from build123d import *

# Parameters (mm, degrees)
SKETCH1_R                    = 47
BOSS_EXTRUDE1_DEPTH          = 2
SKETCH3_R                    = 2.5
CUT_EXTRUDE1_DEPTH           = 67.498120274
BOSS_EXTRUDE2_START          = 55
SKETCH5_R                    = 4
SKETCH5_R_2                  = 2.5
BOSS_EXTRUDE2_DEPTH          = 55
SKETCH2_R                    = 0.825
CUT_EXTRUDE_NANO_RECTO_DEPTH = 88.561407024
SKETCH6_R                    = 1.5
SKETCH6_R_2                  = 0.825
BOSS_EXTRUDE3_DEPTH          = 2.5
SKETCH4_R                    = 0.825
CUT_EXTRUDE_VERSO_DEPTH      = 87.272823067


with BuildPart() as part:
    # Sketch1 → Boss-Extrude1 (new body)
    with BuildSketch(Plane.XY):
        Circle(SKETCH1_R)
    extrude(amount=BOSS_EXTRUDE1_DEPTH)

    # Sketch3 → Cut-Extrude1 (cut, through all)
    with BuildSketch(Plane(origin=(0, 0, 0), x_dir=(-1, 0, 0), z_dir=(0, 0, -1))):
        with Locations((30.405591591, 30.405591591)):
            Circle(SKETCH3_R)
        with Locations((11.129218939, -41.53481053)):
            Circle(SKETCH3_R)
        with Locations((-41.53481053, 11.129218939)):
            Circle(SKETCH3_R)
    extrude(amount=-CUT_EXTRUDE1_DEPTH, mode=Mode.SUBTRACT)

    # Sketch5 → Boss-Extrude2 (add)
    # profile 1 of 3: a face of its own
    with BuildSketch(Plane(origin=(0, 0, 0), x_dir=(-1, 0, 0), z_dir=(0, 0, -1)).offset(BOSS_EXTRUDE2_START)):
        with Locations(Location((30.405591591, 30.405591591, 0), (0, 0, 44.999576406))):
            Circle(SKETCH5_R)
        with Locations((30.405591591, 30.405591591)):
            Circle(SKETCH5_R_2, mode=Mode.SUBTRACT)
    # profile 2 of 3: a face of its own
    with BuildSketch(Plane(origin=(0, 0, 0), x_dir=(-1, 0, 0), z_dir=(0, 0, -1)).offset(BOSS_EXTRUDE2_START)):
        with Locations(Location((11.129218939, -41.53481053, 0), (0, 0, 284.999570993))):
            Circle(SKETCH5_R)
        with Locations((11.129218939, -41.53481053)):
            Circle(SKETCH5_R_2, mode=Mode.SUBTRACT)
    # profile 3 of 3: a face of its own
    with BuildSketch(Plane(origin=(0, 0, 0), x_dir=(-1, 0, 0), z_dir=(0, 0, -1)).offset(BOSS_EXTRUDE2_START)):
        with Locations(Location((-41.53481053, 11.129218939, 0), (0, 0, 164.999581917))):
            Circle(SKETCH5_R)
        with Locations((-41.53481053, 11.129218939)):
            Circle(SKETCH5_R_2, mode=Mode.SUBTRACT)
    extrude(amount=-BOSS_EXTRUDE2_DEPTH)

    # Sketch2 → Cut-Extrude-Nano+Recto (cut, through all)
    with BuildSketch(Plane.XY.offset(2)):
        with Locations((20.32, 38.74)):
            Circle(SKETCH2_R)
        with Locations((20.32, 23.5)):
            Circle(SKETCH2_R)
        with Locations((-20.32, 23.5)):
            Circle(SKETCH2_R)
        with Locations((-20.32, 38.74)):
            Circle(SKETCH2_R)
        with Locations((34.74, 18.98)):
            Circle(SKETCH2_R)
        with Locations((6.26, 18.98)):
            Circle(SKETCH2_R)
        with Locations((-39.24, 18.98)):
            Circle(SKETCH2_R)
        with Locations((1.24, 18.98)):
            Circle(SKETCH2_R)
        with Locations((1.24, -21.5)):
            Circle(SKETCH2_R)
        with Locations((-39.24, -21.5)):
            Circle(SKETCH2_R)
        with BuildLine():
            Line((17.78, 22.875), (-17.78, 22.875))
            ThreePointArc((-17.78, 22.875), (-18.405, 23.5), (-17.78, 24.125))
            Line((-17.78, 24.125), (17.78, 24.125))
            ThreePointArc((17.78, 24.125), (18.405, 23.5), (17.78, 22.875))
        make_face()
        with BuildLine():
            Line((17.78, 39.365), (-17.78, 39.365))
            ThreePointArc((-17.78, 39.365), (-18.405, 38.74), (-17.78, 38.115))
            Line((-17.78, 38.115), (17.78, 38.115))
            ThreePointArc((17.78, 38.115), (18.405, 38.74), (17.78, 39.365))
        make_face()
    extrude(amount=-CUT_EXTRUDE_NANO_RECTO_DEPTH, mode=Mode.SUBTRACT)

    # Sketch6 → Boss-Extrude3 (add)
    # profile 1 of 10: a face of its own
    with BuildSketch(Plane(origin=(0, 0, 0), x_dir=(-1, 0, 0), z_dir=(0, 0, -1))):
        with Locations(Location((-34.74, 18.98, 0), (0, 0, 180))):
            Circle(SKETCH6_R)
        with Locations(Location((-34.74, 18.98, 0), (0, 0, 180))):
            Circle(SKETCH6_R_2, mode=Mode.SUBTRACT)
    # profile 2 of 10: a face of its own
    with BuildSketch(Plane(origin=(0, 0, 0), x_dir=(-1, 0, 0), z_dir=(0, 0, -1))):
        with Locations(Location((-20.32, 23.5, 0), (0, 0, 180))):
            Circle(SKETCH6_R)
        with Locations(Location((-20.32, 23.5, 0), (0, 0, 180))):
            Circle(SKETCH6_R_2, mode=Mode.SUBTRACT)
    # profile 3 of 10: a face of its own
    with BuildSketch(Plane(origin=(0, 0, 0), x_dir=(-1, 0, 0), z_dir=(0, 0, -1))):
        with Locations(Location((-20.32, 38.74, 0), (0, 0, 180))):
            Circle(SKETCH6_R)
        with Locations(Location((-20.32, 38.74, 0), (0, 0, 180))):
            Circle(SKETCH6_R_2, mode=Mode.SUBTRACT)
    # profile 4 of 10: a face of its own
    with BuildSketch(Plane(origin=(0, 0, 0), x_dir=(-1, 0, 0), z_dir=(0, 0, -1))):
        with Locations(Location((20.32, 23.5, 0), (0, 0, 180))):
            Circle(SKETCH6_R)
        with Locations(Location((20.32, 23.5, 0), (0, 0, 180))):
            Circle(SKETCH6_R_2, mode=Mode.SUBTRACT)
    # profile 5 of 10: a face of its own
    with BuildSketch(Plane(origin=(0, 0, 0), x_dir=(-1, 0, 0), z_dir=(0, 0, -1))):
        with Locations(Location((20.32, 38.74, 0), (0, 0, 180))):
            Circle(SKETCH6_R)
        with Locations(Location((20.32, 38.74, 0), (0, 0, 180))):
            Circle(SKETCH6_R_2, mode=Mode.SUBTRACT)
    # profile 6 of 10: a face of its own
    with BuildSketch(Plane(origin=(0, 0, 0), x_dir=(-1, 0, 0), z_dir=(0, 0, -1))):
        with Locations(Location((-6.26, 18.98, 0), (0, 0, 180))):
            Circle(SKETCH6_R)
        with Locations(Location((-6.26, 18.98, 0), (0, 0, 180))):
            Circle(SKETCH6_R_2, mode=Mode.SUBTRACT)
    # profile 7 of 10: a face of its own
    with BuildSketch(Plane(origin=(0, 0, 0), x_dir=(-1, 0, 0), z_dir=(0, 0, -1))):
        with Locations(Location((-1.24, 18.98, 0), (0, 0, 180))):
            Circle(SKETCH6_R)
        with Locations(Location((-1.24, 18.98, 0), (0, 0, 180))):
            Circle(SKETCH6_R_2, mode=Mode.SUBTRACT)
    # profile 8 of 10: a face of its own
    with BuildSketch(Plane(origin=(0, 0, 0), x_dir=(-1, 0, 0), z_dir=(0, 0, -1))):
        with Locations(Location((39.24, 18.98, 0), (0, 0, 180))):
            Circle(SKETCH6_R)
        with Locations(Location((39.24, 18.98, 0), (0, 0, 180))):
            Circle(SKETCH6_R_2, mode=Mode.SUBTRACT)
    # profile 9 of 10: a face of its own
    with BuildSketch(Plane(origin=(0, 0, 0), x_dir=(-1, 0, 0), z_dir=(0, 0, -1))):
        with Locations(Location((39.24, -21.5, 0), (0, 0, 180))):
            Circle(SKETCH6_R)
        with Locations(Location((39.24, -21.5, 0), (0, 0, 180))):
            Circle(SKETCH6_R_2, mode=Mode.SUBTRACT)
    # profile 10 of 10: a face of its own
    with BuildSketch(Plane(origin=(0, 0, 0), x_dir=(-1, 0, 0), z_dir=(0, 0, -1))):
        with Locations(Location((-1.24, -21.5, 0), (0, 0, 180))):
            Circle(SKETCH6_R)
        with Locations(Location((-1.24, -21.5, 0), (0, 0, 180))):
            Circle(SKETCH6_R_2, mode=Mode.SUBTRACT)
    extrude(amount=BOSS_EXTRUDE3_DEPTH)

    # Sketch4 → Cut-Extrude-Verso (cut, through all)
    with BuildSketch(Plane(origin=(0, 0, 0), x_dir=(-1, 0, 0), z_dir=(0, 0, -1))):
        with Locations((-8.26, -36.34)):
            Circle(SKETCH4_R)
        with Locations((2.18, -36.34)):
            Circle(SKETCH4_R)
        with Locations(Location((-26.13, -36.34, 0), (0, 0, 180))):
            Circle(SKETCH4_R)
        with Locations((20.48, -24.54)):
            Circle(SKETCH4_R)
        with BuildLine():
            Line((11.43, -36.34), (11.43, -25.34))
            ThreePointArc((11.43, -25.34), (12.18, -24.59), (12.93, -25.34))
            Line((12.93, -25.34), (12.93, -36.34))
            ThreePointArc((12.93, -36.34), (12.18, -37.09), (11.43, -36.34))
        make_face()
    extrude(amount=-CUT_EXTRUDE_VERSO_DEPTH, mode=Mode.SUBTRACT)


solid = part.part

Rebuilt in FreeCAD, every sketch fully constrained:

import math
import FreeCAD as App
import Part
import Sketcher
Q = App.Units.Quantity

doc = App.newDocument("Part")
body = doc.addObject("PartDesign::Body", "Body")

# Sketch on XY plane
sketch1 = body.newObject("Sketcher::SketchObject", "Sketch")
sketch1.AttachmentSupport = (doc.getObject("XY_Plane"), [""])
sketch1.MapMode = "FlatFace"
sketch1.addGeometry(Part.Circle(App.Vector(0, 0, 0), App.Vector(0, 0, 1), 47), False)
sketch1.addConstraint(Sketcher.Constraint("Coincident", 0, 3, -1, 1))
sketch1.addConstraint(Sketcher.Constraint("Diameter", 0, Q("94 mm")))
pad1 = body.newObject("PartDesign::Pad", "Pad")
pad1.Profile = sketch1
pad1.Length = 2

# Sketch on XY plane
sketch2 = body.newObject("Sketcher::SketchObject", "Sketch001")
sketch2.AttachmentSupport = (doc.getObject("XY_Plane"), [""])
sketch2.MapMode = "FlatFace"
sketch2.addGeometry(Part.Circle(App.Vector(-30.4, 30.4, 0), App.Vector(0, 0, 1), 2.5), False)
sketch2.addGeometry(Part.Circle(App.Vector(-11.1, -41.5, 0), App.Vector(0, 0, 1), 2.5), False)
sketch2.addGeometry(Part.Circle(App.Vector(41.5, 11.1, 0), App.Vector(0, 0, 1), 2.5), False)
sketch2.addConstraint(Sketcher.Constraint("Equal", 0, 1))
sketch2.addConstraint(Sketcher.Constraint("Equal", 1, 2))
sketch2.addConstraint(Sketcher.Constraint("Diameter", 0, Q("5 mm")))
sketch2.addConstraint(Sketcher.Constraint("DistanceX", 0, 3, -1, 1, Q("30.405592 mm")))
sketch2.addConstraint(Sketcher.Constraint("DistanceY", -1, 1, 0, 3, Q("30.405592 mm")))
sketch2.addConstraint(Sketcher.Constraint("DistanceX", 1, 3, -1, 1, Q("11.129219 mm")))
sketch2.addConstraint(Sketcher.Constraint("DistanceY", 1, 3, -1, 1, Q("41.534811 mm")))
sketch2.addConstraint(Sketcher.Constraint("DistanceX", -1, 1, 2, 3, Q("41.534811 mm")))
sketch2.addConstraint(Sketcher.Constraint("DistanceY", -1, 1, 2, 3, Q("11.129219 mm")))
pocket1 = body.newObject("PartDesign::Pocket", "Pocket")
pocket1.Profile = sketch2
pocket1.Type = "ThroughAll"
pocket1.Reversed = True

# Sketch on XY plane
sketch3 = body.newObject("Sketcher::SketchObject", "Sketch002")
sketch3.AttachmentSupport = (doc.getObject("XY_Plane"), [""])
sketch3.MapMode = "FlatFace"
sketch3.AttachmentOffset = App.Placement(App.Vector(0, 0, -55), App.Rotation())
sketch3.addGeometry(Part.Circle(App.Vector(-30.4, 30.4, 0), App.Vector(0, 0, 1), 4), False)
sketch3.addGeometry(Part.Circle(App.Vector(-30.4, 30.4, 0), App.Vector(0, 0, 1), 2.5), False)
sketch3.addGeometry(Part.Circle(App.Vector(-11.1, -41.5, 0), App.Vector(0, 0, 1), 4), False)
sketch3.addGeometry(Part.Circle(App.Vector(-11.1, -41.5, 0), App.Vector(0, 0, 1), 2.5), False)
sketch3.addGeometry(Part.Circle(App.Vector(41.5, 11.1, 0), App.Vector(0, 0, 1), 4), False)
sketch3.addGeometry(Part.Circle(App.Vector(41.5, 11.1, 0), App.Vector(0, 0, 1), 2.5), False)
sketch3.addConstraint(Sketcher.Constraint("Coincident", 1, 3, 0, 3))
sketch3.addConstraint(Sketcher.Constraint("Coincident", 3, 3, 2, 3))
sketch3.addConstraint(Sketcher.Constraint("Coincident", 5, 3, 4, 3))
sketch3.addConstraint(Sketcher.Constraint("Equal", 0, 2))
sketch3.addConstraint(Sketcher.Constraint("Equal", 1, 3))
sketch3.addConstraint(Sketcher.Constraint("Equal", 2, 4))
sketch3.addConstraint(Sketcher.Constraint("Equal", 3, 5))
sketch3.addConstraint(Sketcher.Constraint("Diameter", 0, Q("8 mm")))
sketch3.addConstraint(Sketcher.Constraint("Diameter", 1, Q("5 mm")))
sketch3.addConstraint(Sketcher.Constraint("DistanceX", 0, 3, -1, 1, Q("30.405592 mm")))
sketch3.addConstraint(Sketcher.Constraint("DistanceY", -1, 1, 0, 3, Q("30.405592 mm")))
sketch3.addConstraint(Sketcher.Constraint("DistanceX", 2, 3, -1, 1, Q("11.129219 mm")))
sketch3.addConstraint(Sketcher.Constraint("DistanceY", 2, 3, -1, 1, Q("41.534811 mm")))
sketch3.addConstraint(Sketcher.Constraint("DistanceX", -1, 1, 4, 3, Q("41.534811 mm")))
sketch3.addConstraint(Sketcher.Constraint("DistanceY", -1, 1, 4, 3, Q("11.129219 mm")))
pad2 = body.newObject("PartDesign::Pad", "Pad001")
pad2.Profile = sketch3
pad2.Length = 55

# Sketch on XY plane
sketch4 = body.newObject("Sketcher::SketchObject", "Sketch003")
sketch4.AttachmentSupport = (doc.getObject("XY_Plane"), [""])
sketch4.MapMode = "FlatFace"
sketch4.AttachmentOffset = App.Placement(App.Vector(0, 0, 2), App.Rotation())
sketch4.addGeometry(Part.Circle(App.Vector(20.3, 38.7, 0), App.Vector(0, 0, 1), 0.8), False)
sketch4.addGeometry(Part.Circle(App.Vector(20.3, 23.5, 0), App.Vector(0, 0, 1), 0.8), False)
sketch4.addGeometry(Part.Circle(App.Vector(-20.3, 23.5, 0), App.Vector(0, 0, 1), 0.8), False)
sketch4.addGeometry(Part.Circle(App.Vector(-20.3, 38.7, 0), App.Vector(0, 0, 1), 0.8), False)
sketch4.addGeometry(Part.Circle(App.Vector(34.7, 19, 0), App.Vector(0, 0, 1), 0.8), False)
sketch4.addGeometry(Part.Circle(App.Vector(6.3, 19, 0), App.Vector(0, 0, 1), 0.8), False)
sketch4.addGeometry(Part.Circle(App.Vector(-39.2, 19, 0), App.Vector(0, 0, 1), 0.8), False)
sketch4.addGeometry(Part.Circle(App.Vector(1.2, 19, 0), App.Vector(0, 0, 1), 0.8), False)
sketch4.addGeometry(Part.Circle(App.Vector(1.2, -21.5, 0), App.Vector(0, 0, 1), 0.8), False)
sketch4.addGeometry(Part.Circle(App.Vector(-39.2, -21.5, 0), App.Vector(0, 0, 1), 0.8), False)
sketch4.addGeometry(Part.LineSegment(App.Vector(-17.8, 22.9, 0), App.Vector(17.8, 22.9, 0)), False)
sketch4.addGeometry(Part.ArcOfCircle(Part.Circle(App.Vector(17.8, 23.5, 0), App.Vector(0, 0, 1), 0.6), math.radians(-90), math.radians(90)), False)
sketch4.addGeometry(Part.LineSegment(App.Vector(17.8, 24.1, 0), App.Vector(-17.8, 24.1, 0)), False)
sketch4.addGeometry(Part.ArcOfCircle(Part.Circle(App.Vector(-17.8, 23.5, 0), App.Vector(0, 0, 1), 0.6), math.radians(90), math.radians(270)), False)
sketch4.addGeometry(Part.LineSegment(App.Vector(17.8, 39.4, 0), App.Vector(-17.8, 39.4, 0)), False)
sketch4.addGeometry(Part.ArcOfCircle(Part.Circle(App.Vector(-17.8, 38.7, 0), App.Vector(0, 0, 1), 0.6), math.radians(90), math.radians(270)), False)
sketch4.addGeometry(Part.LineSegment(App.Vector(-17.8, 38.1, 0), App.Vector(17.8, 38.1, 0)), False)
sketch4.addGeometry(Part.ArcOfCircle(Part.Circle(App.Vector(17.8, 38.7, 0), App.Vector(0, 0, 1), 0.6), math.radians(-90), math.radians(90)), False)
sketch4.addConstraint(Sketcher.Constraint("Tangent", 10, 2, 11, 1))
sketch4.addConstraint(Sketcher.Constraint("Tangent", 11, 2, 12, 1))
sketch4.addConstraint(Sketcher.Constraint("Tangent", 12, 2, 13, 1))
sketch4.addConstraint(Sketcher.Constraint("Tangent", 13, 2, 10, 1))
sketch4.addConstraint(Sketcher.Constraint("Tangent", 14, 2, 15, 1))
sketch4.addConstraint(Sketcher.Constraint("Tangent", 15, 2, 16, 1))
sketch4.addConstraint(Sketcher.Constraint("Tangent", 16, 2, 17, 1))
sketch4.addConstraint(Sketcher.Constraint("Tangent", 17, 2, 14, 1))
sketch4.addConstraint(Sketcher.Constraint("Horizontal", 10))
sketch4.addConstraint(Sketcher.Constraint("Horizontal", 12))
sketch4.addConstraint(Sketcher.Constraint("Horizontal", 14))
sketch4.addConstraint(Sketcher.Constraint("Horizontal", 16))
sketch4.addConstraint(Sketcher.Constraint("Equal", 0, 1))
sketch4.addConstraint(Sketcher.Constraint("Equal", 1, 2))
sketch4.addConstraint(Sketcher.Constraint("Equal", 2, 3))
sketch4.addConstraint(Sketcher.Constraint("Equal", 3, 4))
sketch4.addConstraint(Sketcher.Constraint("Equal", 4, 5))
sketch4.addConstraint(Sketcher.Constraint("Equal", 5, 6))
sketch4.addConstraint(Sketcher.Constraint("Equal", 6, 7))
sketch4.addConstraint(Sketcher.Constraint("Equal", 7, 8))
sketch4.addConstraint(Sketcher.Constraint("Equal", 8, 9))
sketch4.addConstraint(Sketcher.Constraint("Equal", 13, 15))
sketch4.addConstraint(Sketcher.Constraint("Symmetric", 1, 3, 2, 3, -2))
sketch4.addConstraint(Sketcher.Constraint("Symmetric", 0, 3, 3, 3, -2))
sketch4.addConstraint(Sketcher.Constraint("Horizontal", 4, 3, 5, 3))
sketch4.addConstraint(Sketcher.Constraint("Horizontal", 5, 3, 6, 3))
sketch4.addConstraint(Sketcher.Constraint("Horizontal", 6, 3, 7, 3))
sketch4.addConstraint(Sketcher.Constraint("Horizontal", 8, 3, 9, 3))
sketch4.addConstraint(Sketcher.Constraint("Horizontal", 2, 3, 11, 3))
sketch4.addConstraint(Sketcher.Constraint("Horizontal", 3, 3, 15, 3))
sketch4.addConstraint(Sketcher.Constraint("Vertical", 0, 3, 1, 3))
sketch4.addConstraint(Sketcher.Constraint("Vertical", 7, 3, 8, 3))
sketch4.addConstraint(Sketcher.Constraint("Vertical", 6, 3, 9, 3))
sketch4.addConstraint(Sketcher.Constraint("Vertical", 13, 3, 15, 3))
sketch4.addConstraint(Sketcher.Constraint("Vertical", 11, 3, 17, 3))
sketch4.addConstraint(Sketcher.Constraint("Diameter", 0, Q("1.65 mm")))
sketch4.addConstraint(Sketcher.Constraint("Radius", 11, Q("0.625 mm")))
sketch4.addConstraint(Sketcher.Constraint("DistanceY", 8, 3, 1, 3, Q("45 mm")))
sketch4.addConstraint(Sketcher.Constraint("DistanceX", 10, 1, 10, 2, Q("35.56 mm")))
sketch4.addConstraint(Sketcher.Constraint("DistanceY", -1, 1, 1, 3, Q("23.5 mm")))
sketch4.addConstraint(Sketcher.Constraint("DistanceX", 6, 3, 5, 3, Q("45.5 mm")))
sketch4.addConstraint(Sketcher.Constraint("DistanceX", 8, 3, 4, 3, Q("33.5 mm")))
sketch4.addConstraint(Sketcher.Constraint("DistanceX", -1, 1, 0, 3, Q("20.32 mm")))
sketch4.addConstraint(Sketcher.Constraint("DistanceY", -1, 1, 0, 3, Q("38.74 mm")))
sketch4.addConstraint(Sketcher.Constraint("DistanceX", -1, 1, 4, 3, Q("34.74 mm")))
sketch4.addConstraint(Sketcher.Constraint("DistanceY", -1, 1, 4, 3, Q("18.98 mm")))
sketch4.addConstraint(Sketcher.Constraint("DistanceX", -1, 1, 5, 3, Q("6.26 mm")))
sketch4.addConstraint(Sketcher.Constraint("DistanceX", -1, 1, 11, 3, Q("17.78 mm")))
pocket2 = body.newObject("PartDesign::Pocket", "Pocket001")
pocket2.Profile = sketch4
pocket2.Type = "ThroughAll"

# Sketch on XY plane
sketch5 = body.newObject("Sketcher::SketchObject", "Sketch004")
sketch5.AttachmentSupport = (doc.getObject("XY_Plane"), [""])
sketch5.MapMode = "FlatFace"
sketch5.addGeometry(Part.Circle(App.Vector(34.7, 19, 0), App.Vector(0, 0, 1), 1.5), False)
sketch5.addGeometry(Part.Circle(App.Vector(34.7, 19, 0), App.Vector(0, 0, 1), 0.8), False)
sketch5.addGeometry(Part.Circle(App.Vector(20.3, 23.5, 0), App.Vector(0, 0, 1), 1.5), False)
sketch5.addGeometry(Part.Circle(App.Vector(20.3, 23.5, 0), App.Vector(0, 0, 1), 0.8), False)
sketch5.addGeometry(Part.Circle(App.Vector(20.3, 38.7, 0), App.Vector(0, 0, 1), 1.5), False)
sketch5.addGeometry(Part.Circle(App.Vector(20.3, 38.7, 0), App.Vector(0, 0, 1), 0.8), False)
sketch5.addGeometry(Part.Circle(App.Vector(-20.3, 23.5, 0), App.Vector(0, 0, 1), 1.5), False)
sketch5.addGeometry(Part.Circle(App.Vector(-20.3, 23.5, 0), App.Vector(0, 0, 1), 0.8), False)
sketch5.addGeometry(Part.Circle(App.Vector(-20.3, 38.7, 0), App.Vector(0, 0, 1), 1.5), False)
sketch5.addGeometry(Part.Circle(App.Vector(-20.3, 38.7, 0), App.Vector(0, 0, 1), 0.8), False)
sketch5.addGeometry(Part.Circle(App.Vector(6.3, 19, 0), App.Vector(0, 0, 1), 1.5), False)
sketch5.addGeometry(Part.Circle(App.Vector(6.3, 19, 0), App.Vector(0, 0, 1), 0.8), False)
sketch5.addGeometry(Part.Circle(App.Vector(1.2, 19, 0), App.Vector(0, 0, 1), 1.5), False)
sketch5.addGeometry(Part.Circle(App.Vector(1.2, 19, 0), App.Vector(0, 0, 1), 0.8), False)
sketch5.addGeometry(Part.Circle(App.Vector(-39.2, 19, 0), App.Vector(0, 0, 1), 1.5), False)
sketch5.addGeometry(Part.Circle(App.Vector(-39.2, 19, 0), App.Vector(0, 0, 1), 0.8), False)
sketch5.addGeometry(Part.Circle(App.Vector(-39.2, -21.5, 0), App.Vector(0, 0, 1), 1.5), False)
sketch5.addGeometry(Part.Circle(App.Vector(-39.2, -21.5, 0), App.Vector(0, 0, 1), 0.8), False)
sketch5.addGeometry(Part.Circle(App.Vector(1.2, -21.5, 0), App.Vector(0, 0, 1), 1.5), False)
sketch5.addGeometry(Part.Circle(App.Vector(1.2, -21.5, 0), App.Vector(0, 0, 1), 0.8), False)
sketch5.addConstraint(Sketcher.Constraint("Coincident", 1, 3, 0, 3))
sketch5.addConstraint(Sketcher.Constraint("Coincident", 3, 3, 2, 3))
sketch5.addConstraint(Sketcher.Constraint("Coincident", 5, 3, 4, 3))
sketch5.addConstraint(Sketcher.Constraint("Coincident", 7, 3, 6, 3))
sketch5.addConstraint(Sketcher.Constraint("Coincident", 9, 3, 8, 3))
sketch5.addConstraint(Sketcher.Constraint("Coincident", 11, 3, 10, 3))
sketch5.addConstraint(Sketcher.Constraint("Coincident", 13, 3, 12, 3))
sketch5.addConstraint(Sketcher.Constraint("Coincident", 15, 3, 14, 3))
sketch5.addConstraint(Sketcher.Constraint("Coincident", 17, 3, 16, 3))
sketch5.addConstraint(Sketcher.Constraint("Coincident", 19, 3, 18, 3))
sketch5.addConstraint(Sketcher.Constraint("Equal", 0, 2))
sketch5.addConstraint(Sketcher.Constraint("Equal", 1, 3))
sketch5.addConstraint(Sketcher.Constraint("Equal", 2, 4))
sketch5.addConstraint(Sketcher.Constraint("Equal", 3, 5))
sketch5.addConstraint(Sketcher.Constraint("Equal", 4, 6))
sketch5.addConstraint(Sketcher.Constraint("Equal", 5, 7))
sketch5.addConstraint(Sketcher.Constraint("Equal", 6, 8))
sketch5.addConstraint(Sketcher.Constraint("Equal", 7, 9))
sketch5.addConstraint(Sketcher.Constraint("Equal", 8, 10))
sketch5.addConstraint(Sketcher.Constraint("Equal", 9, 11))
sketch5.addConstraint(Sketcher.Constraint("Equal", 10, 12))
sketch5.addConstraint(Sketcher.Constraint("Equal", 11, 13))
sketch5.addConstraint(Sketcher.Constraint("Equal", 12, 14))
sketch5.addConstraint(Sketcher.Constraint("Equal", 13, 15))
sketch5.addConstraint(Sketcher.Constraint("Equal", 14, 16))
sketch5.addConstraint(Sketcher.Constraint("Equal", 15, 17))
sketch5.addConstraint(Sketcher.Constraint("Equal", 16, 18))
sketch5.addConstraint(Sketcher.Constraint("Equal", 17, 19))
sketch5.addConstraint(Sketcher.Constraint("Symmetric", 2, 3, 6, 3, -2))
sketch5.addConstraint(Sketcher.Constraint("Symmetric", 4, 3, 8, 3, -2))
sketch5.addConstraint(Sketcher.Constraint("Horizontal", 1, 3, 10, 3))
sketch5.addConstraint(Sketcher.Constraint("Horizontal", 11, 3, 12, 3))
sketch5.addConstraint(Sketcher.Constraint("Horizontal", 13, 3, 14, 3))
sketch5.addConstraint(Sketcher.Constraint("Horizontal", 17, 3, 18, 3))
sketch5.addConstraint(Sketcher.Constraint("Vertical", 3, 3, 4, 3))
sketch5.addConstraint(Sketcher.Constraint("Vertical", 15, 3, 16, 3))
sketch5.addConstraint(Sketcher.Constraint("Vertical", 13, 3, 18, 3))
sketch5.addConstraint(Sketcher.Constraint("Diameter", 0, Q("3 mm")))
sketch5.addConstraint(Sketcher.Constraint("Diameter", 1, Q("1.65 mm")))
sketch5.addConstraint(Sketcher.Constraint("DistanceY", 16, 3, 6, 3, Q("45 mm")))
sketch5.addConstraint(Sketcher.Constraint("DistanceY", -1, 1, 2, 3, Q("23.5 mm")))
sketch5.addConstraint(Sketcher.Constraint("DistanceX", -1, 1, 0, 3, Q("34.74 mm")))
sketch5.addConstraint(Sketcher.Constraint("DistanceY", -1, 1, 0, 3, Q("18.98 mm")))
sketch5.addConstraint(Sketcher.Constraint("DistanceX", -1, 1, 2, 3, Q("20.32 mm")))
sketch5.addConstraint(Sketcher.Constraint("DistanceY", -1, 1, 4, 3, Q("38.74 mm")))
sketch5.addConstraint(Sketcher.Constraint("DistanceX", -1, 1, 10, 3, Q("6.26 mm")))
sketch5.addConstraint(Sketcher.Constraint("DistanceX", -1, 1, 12, 3, Q("1.24 mm")))
sketch5.addConstraint(Sketcher.Constraint("DistanceX", 14, 3, -1, 1, Q("39.24 mm")))
pad3 = body.newObject("PartDesign::Pad", "Pad002")
pad3.Profile = sketch5
pad3.Length = 2.5
pad3.Reversed = True

# Sketch on XY plane
sketch6 = body.newObject("Sketcher::SketchObject", "Sketch005")
sketch6.AttachmentSupport = (doc.getObject("XY_Plane"), [""])
sketch6.MapMode = "FlatFace"
sketch6.addGeometry(Part.Circle(App.Vector(8.3, -36.3, 0), App.Vector(0, 0, 1), 0.8), False)
sketch6.addGeometry(Part.Circle(App.Vector(-2.2, -36.3, 0), App.Vector(0, 0, 1), 0.8), False)
sketch6.addGeometry(Part.Circle(App.Vector(26.1, -36.3, 0), App.Vector(0, 0, 1), 0.8), False)
sketch6.addGeometry(Part.Circle(App.Vector(-20.5, -24.5, 0), App.Vector(0, 0, 1), 0.8), False)
sketch6.addGeometry(Part.LineSegment(App.Vector(-11.4, -25.3, 0), App.Vector(-11.4, -36.3, 0)), False)
sketch6.addGeometry(Part.ArcOfCircle(Part.Circle(App.Vector(-12.2, -36.3, 0), App.Vector(0, 0, 1), 0.8), math.radians(180), math.radians(360)), False)
sketch6.addGeometry(Part.LineSegment(App.Vector(-12.9, -36.3, 0), App.Vector(-12.9, -25.3, 0)), False)
sketch6.addGeometry(Part.ArcOfCircle(Part.Circle(App.Vector(-12.2, -25.3, 0), App.Vector(0, 0, 1), 0.8), math.radians(0), math.radians(180)), False)
sketch6.addConstraint(Sketcher.Constraint("Tangent", 4, 2, 5, 2))
sketch6.addConstraint(Sketcher.Constraint("Tangent", 5, 1, 6, 1))
sketch6.addConstraint(Sketcher.Constraint("Tangent", 6, 2, 7, 2))
sketch6.addConstraint(Sketcher.Constraint("Tangent", 7, 1, 4, 1))
sketch6.addConstraint(Sketcher.Constraint("Vertical", 4))
sketch6.addConstraint(Sketcher.Constraint("Vertical", 6))
sketch6.addConstraint(Sketcher.Constraint("Equal", 0, 1))
sketch6.addConstraint(Sketcher.Constraint("Equal", 1, 2))
sketch6.addConstraint(Sketcher.Constraint("Equal", 2, 3))
sketch6.addConstraint(Sketcher.Constraint("Horizontal", 0, 3, 1, 3))
sketch6.addConstraint(Sketcher.Constraint("Horizontal", 1, 3, 2, 3))
sketch6.addConstraint(Sketcher.Constraint("Horizontal", 2, 3, 5, 3))
sketch6.addConstraint(Sketcher.Constraint("Diameter", 0, Q("1.65 mm")))
sketch6.addConstraint(Sketcher.Constraint("DistanceY", 4, 2, 4, 1, Q("11 mm")))
sketch6.addConstraint(Sketcher.Constraint("Radius", 5, Q("0.75 mm")))
sketch6.addConstraint(Sketcher.Constraint("DistanceX", 5, 3, 1, 3, Q("10 mm")))
sketch6.addConstraint(Sketcher.Constraint("DistanceX", 3, 3, 1, 3, Q("18.3 mm")))
sketch6.addConstraint(Sketcher.Constraint("DistanceY", 1, 3, 3, 3, Q("11.8 mm")))
sketch6.addConstraint(Sketcher.Constraint("DistanceX", -1, 1, 0, 3, Q("8.26 mm")))
sketch6.addConstraint(Sketcher.Constraint("DistanceY", 0, 3, -1, 1, Q("36.34 mm")))
sketch6.addConstraint(Sketcher.Constraint("DistanceX", 1, 3, -1, 1, Q("2.18 mm")))
sketch6.addConstraint(Sketcher.Constraint("DistanceX", -1, 1, 2, 3, Q("26.13 mm")))
pocket3 = body.newObject("PartDesign::Pocket", "Pocket002")
pocket3.Profile = sketch6
pocket3.Type = "ThroughAll"
pocket3.Reversed = True

doc.recompute()
